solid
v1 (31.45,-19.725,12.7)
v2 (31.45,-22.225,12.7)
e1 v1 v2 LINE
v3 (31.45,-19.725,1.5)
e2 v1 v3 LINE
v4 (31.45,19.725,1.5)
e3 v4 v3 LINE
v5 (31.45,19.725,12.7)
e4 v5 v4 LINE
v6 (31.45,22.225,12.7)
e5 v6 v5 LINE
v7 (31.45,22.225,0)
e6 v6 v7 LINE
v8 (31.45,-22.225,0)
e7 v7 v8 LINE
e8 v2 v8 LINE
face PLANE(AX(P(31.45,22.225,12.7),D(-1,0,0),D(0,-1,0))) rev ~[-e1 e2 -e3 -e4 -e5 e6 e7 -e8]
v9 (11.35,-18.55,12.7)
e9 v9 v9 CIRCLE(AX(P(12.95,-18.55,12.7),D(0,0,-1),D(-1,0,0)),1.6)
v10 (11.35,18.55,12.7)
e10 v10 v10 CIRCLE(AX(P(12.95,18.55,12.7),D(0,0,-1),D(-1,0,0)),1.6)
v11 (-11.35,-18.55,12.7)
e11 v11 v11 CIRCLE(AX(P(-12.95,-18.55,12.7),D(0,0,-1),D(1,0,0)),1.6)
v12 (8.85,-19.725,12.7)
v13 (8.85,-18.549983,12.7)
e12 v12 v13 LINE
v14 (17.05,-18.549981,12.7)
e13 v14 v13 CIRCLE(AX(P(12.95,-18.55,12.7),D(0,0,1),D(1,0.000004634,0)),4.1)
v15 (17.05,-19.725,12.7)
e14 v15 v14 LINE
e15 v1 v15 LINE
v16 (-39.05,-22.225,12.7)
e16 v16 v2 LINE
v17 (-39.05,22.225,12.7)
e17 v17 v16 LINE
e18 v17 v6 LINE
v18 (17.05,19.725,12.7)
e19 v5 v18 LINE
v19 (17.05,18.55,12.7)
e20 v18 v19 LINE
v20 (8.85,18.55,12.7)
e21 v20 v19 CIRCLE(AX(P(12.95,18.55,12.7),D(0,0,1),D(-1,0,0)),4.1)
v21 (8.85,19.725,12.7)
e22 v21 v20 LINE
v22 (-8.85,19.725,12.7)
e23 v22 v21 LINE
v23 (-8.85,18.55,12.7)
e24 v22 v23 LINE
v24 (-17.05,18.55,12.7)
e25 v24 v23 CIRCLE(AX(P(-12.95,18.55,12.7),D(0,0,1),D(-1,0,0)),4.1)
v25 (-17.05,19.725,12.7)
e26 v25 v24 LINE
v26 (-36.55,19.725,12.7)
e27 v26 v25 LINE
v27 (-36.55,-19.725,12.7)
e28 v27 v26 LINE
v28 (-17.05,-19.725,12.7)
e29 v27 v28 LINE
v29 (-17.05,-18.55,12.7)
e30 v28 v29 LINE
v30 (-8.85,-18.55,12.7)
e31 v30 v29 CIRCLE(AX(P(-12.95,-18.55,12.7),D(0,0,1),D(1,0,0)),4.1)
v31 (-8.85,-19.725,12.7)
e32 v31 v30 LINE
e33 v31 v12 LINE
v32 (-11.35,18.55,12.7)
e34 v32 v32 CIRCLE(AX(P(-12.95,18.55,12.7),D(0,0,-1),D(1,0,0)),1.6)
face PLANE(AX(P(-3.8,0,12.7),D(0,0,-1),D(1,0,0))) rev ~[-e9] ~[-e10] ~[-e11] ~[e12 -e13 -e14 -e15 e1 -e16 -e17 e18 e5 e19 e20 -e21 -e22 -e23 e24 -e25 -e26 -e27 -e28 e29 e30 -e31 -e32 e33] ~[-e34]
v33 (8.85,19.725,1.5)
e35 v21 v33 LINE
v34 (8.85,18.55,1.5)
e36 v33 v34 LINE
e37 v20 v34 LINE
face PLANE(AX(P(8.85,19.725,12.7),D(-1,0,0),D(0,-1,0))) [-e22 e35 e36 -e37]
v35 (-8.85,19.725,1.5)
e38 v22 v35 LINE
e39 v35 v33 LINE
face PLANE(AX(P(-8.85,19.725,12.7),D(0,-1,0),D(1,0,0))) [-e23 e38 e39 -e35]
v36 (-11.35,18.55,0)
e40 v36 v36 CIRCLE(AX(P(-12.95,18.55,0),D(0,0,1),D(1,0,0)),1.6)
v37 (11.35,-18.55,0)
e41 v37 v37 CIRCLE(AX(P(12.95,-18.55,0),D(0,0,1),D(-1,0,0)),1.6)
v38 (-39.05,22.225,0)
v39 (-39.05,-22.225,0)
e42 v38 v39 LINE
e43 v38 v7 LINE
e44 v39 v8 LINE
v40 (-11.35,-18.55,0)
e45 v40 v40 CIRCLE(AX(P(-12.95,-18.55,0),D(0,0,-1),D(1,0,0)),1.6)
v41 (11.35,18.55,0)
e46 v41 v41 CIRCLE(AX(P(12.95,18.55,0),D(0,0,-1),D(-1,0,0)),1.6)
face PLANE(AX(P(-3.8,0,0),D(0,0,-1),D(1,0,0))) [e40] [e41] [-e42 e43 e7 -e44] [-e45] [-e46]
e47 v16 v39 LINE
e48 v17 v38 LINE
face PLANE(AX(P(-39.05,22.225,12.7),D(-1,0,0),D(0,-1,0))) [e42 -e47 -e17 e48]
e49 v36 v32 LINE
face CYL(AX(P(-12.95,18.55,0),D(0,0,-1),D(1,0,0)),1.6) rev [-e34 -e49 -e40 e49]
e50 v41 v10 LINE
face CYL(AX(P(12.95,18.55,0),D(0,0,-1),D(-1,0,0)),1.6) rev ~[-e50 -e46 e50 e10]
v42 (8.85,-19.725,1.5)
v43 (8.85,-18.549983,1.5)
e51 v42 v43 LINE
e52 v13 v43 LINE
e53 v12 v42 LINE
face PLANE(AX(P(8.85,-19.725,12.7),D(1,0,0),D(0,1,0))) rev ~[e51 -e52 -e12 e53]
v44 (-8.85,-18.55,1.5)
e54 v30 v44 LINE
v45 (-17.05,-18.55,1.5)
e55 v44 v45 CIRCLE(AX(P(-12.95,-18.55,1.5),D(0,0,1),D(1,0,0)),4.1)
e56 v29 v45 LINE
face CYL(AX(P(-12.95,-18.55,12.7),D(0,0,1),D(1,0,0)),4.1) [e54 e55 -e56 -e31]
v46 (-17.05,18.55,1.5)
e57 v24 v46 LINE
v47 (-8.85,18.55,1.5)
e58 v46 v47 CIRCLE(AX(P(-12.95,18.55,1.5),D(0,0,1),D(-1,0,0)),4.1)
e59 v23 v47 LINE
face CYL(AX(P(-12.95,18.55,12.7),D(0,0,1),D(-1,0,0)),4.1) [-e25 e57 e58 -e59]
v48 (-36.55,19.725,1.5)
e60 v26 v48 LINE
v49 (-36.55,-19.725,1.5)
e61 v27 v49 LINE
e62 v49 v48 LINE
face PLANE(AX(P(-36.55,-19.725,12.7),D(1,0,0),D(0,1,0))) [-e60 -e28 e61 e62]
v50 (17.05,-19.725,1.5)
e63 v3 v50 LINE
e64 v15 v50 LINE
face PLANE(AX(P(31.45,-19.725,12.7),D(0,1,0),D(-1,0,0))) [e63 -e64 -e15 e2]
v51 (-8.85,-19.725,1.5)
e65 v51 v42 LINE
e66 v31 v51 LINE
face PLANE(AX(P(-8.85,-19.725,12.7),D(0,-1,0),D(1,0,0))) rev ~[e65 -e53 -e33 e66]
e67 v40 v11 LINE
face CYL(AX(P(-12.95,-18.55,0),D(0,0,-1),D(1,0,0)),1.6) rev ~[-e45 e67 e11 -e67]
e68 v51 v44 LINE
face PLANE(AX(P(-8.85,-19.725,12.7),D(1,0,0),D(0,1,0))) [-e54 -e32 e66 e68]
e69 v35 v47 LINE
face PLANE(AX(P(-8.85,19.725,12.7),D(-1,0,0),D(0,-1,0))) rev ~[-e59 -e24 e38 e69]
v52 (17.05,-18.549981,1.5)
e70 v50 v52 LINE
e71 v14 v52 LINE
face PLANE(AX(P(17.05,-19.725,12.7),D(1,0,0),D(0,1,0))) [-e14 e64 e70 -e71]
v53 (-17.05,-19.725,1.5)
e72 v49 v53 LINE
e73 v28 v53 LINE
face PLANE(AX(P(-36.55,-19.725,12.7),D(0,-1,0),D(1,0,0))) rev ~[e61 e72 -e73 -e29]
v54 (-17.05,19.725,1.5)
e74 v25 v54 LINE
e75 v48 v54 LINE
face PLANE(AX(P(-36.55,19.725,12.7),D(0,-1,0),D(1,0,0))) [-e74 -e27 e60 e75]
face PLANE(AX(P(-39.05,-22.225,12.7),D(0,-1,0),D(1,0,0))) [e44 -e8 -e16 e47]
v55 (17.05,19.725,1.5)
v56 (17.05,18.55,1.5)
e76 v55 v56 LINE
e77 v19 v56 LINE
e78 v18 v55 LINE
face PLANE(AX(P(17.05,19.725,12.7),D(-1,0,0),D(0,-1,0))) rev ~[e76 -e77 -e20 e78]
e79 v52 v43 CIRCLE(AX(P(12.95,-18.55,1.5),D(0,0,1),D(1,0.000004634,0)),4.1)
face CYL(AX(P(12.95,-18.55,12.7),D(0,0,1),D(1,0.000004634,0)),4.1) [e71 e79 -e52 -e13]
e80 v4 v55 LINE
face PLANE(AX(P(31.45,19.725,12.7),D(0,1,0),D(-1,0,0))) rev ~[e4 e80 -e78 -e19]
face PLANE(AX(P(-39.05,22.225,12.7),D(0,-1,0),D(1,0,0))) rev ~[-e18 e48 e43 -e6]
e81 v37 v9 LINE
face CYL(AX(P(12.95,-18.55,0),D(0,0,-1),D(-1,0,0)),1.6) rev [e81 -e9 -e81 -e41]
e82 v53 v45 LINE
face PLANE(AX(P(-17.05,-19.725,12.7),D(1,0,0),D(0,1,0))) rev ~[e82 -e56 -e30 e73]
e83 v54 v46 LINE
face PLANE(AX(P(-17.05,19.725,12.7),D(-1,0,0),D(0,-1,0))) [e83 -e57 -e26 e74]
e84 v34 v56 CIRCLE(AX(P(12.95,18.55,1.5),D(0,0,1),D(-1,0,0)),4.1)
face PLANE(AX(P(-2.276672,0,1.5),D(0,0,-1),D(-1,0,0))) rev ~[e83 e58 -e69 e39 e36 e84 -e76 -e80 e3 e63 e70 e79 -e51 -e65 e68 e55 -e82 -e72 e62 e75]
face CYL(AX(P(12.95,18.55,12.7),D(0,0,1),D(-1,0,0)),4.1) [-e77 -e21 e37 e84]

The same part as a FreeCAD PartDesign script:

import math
import FreeCAD as App
import Part
import Sketcher
from FreeCAD import Vector
Q = App.Units.Quantity

doc = App.newDocument("Part")
body = doc.addObject("PartDesign::Body", "Body")

sketch1 = doc.addObject("Sketcher::SketchObject", "Sketch")
body.addObject(sketch1)
sketch1.AttachmentSupport = (doc.XY_Plane, [""])
sketch1.MapMode = "FlatFace"
sketch1.addGeometry([
    Part.LineSegment(Vector(-39.05, 22.225, 0), Vector(-39.05, -22.225, 0)),
    Part.LineSegment(Vector(-39.05, -22.225, 0), Vector(31.45, -22.225, 0)),
    Part.LineSegment(Vector(31.45, -22.225, 0), Vector(31.45, 22.225, 0)),
    Part.LineSegment(Vector(31.45, 22.225, 0), Vector(-39.05, 22.225, 0)),
], False)
sketch1.addConstraint([
    Sketcher.Constraint("Coincident", 0, 2, 1, 1),
    Sketcher.Constraint("Coincident", 1, 2, 2, 1),
    Sketcher.Constraint("Coincident", 2, 2, 3, 1),
    Sketcher.Constraint("Coincident", 3, 2, 0, 1),
    Sketcher.Constraint("Vertical", 0),
    Sketcher.Constraint("Horizontal", 1),
    Sketcher.Constraint("Vertical", 2),
    Sketcher.Constraint("Horizontal", 3),
    Sketcher.Constraint("DistanceX", 1, 1, 1, 2, Q("70.5 mm")),
    Sketcher.Constraint("DistanceY", 0, 2, 0, 1, Q("44.45 mm")),
    Sketcher.Constraint("DistanceX", 0, 2, -1, 1, Q("39.05 mm")),
    Sketcher.Constraint("DistanceY", 0, 2, -1, 1, Q("22.225 mm")),
])
pad1 = doc.addObject("PartDesign::Pad", "Pad")
body.addObject(pad1)
pad1.Profile = sketch1
pad1.Length = 12.7

sketch2 = doc.addObject("Sketcher::SketchObject", "Sketch001")
body.addObject(sketch2)
sketch2.AttachmentSupport = (doc.XY_Plane, [""])
sketch2.MapMode = "FlatFace"
sketch2.AttachmentOffset = App.Placement(Vector(0, 0, 12.7), App.Rotation())
sketch2.addGeometry(Part.Circle(Vector(-12.95, 18.55, 0), Vector(0, 0, 1), 1.6), False)
sketch2.addConstraint([
    Sketcher.Constraint("Diameter", 0, Q("3.2 mm")),
    Sketcher.Constraint("DistanceX", 0, 3, -1, 1, Q("12.95 mm")),
    Sketcher.Constraint("DistanceY", -1, 1, 0, 3, Q("18.55 mm")),
])
pocket1 = doc.addObject("PartDesign::Pocket", "Pocket")
body.addObject(pocket1)
pocket1.Profile = sketch2
pocket1.Type = "ThroughAll"

sketch3 = doc.addObject("Sketcher::SketchObject", "Sketch002")
body.addObject(sketch3)
sketch3.AttachmentSupport = (doc.XY_Plane, [""])
sketch3.MapMode = "FlatFace"
sketch3.AttachmentOffset = App.Placement(Vector(0, 0, 12.7), App.Rotation())
sketch3.addGeometry(Part.Circle(Vector(12.95, 18.55, 0), Vector(0, 0, 1), 1.6), False)
sketch3.addConstraint([
    Sketcher.Constraint("Diameter", 0, Q("3.2 mm")),
    Sketcher.Constraint("DistanceX", -1, 1, 0, 3, Q("12.95 mm")),
    Sketcher.Constraint("DistanceY", -1, 1, 0, 3, Q("18.55 mm")),
])
pocket2 = doc.addObject("PartDesign::Pocket", "Pocket001")
body.addObject(pocket2)
pocket2.Profile = sketch3
pocket2.Type = "ThroughAll"
doc.recompute()

mirrored = doc.addObject("PartDesign::Mirrored", "Mirrored")
body.addObject(mirrored)
mirrored.Originals = [pocket1, pocket2]
mirrored.MirrorPlane = (doc.XZ_Plane, [""])
body.Tip = mirrored

sketch4 = doc.addObject("Sketcher::SketchObject", "Sketch003")
body.addObject(sketch4)
sketch4.AttachmentSupport = (doc.XY_Plane, [""])
sketch4.MapMode = "FlatFace"
sketch4.addGeometry([
    Part.LineSegment(Vector(-36.55, -19.725, 0), Vector(-36.55, 19.725, 0)),
    Part.LineSegment(Vector(-36.55, 19.725, 0), Vector(-17.05, 19.725, 0)),
    Part.LineSegment(Vector(-17.05, 19.725, 0), Vector(-17.05, 18.55, 0)),
    Part.ArcOfCircle(Part.Circle(Vector(-12.95, 18.55, 0), Vector(0, 0, 1), 4.1), math.radians(180), math.radians(360)),
    Part.LineSegment(Vector(-8.85, 18.55, 0), Vector(-8.85, 19.725, 0)),
    Part.LineSegment(Vector(-8.85, 19.725, 0), Vector(8.85, 19.725, 0)),
    Part.LineSegment(Vector(8.85, 19.725, 0), Vector(8.85, 18.549983, 0)),
    Part.ArcOfCircle(Part.Circle(Vector(12.95, 18.55, 0), Vector(0, 0, 1), 4.1), math.radians(-179.999762), math.radians(-0.000266)),
    Part.LineSegment(Vector(17.05, 18.549981, 0), Vector(17.05, 19.725, 0)),
    Part.LineSegment(Vector(17.05, 19.725, 0), Vector(31.45, 19.725, 0)),
    Part.LineSegment(Vector(31.45, 19.725, 0), Vector(31.45, -19.725, 0)),
    Part.LineSegment(Vector(31.45, -19.725, 0), Vector(17.05, -19.725, 0)),
    Part.LineSegment(Vector(17.05, -19.725, 0), Vector(17.05, -18.55, 0)),
    Part.ArcOfCircle(Part.Circle(Vector(12.95, -18.55, 0), Vector(0, 0, 1), 4.1), math.radians(0), math.radians(180)),
    Part.LineSegment(Vector(8.85, -18.55, 0), Vector(8.85, -19.725, 0)),
    Part.LineSegment(Vector(8.85, -19.725, 0), Vector(-8.85, -19.725, 0)),
    Part.LineSegment(Vector(-8.85, -19.725, 0), Vector(-8.85, -18.55, 0)),
    Part.ArcOfCircle(Part.Circle(Vector(-12.95, -18.55, 0), Vector(0, 0, 1), 4.1), math.radians(0), math.radians(180)),
    Part.LineSegment(Vector(-17.05, -18.55, 0), Vector(-17.05, -19.725, 0)),
    Part.LineSegment(Vector(-17.05, -19.725, 0), Vector(-36.55, -19.725, 0)),
], False)
sketch4.addConstraint([
    Sketcher.Constraint("Coincident", 0, 2, 1, 1),
    Sketcher.Constraint("Coincident", 1, 2, 2, 1),
    Sketcher.Constraint("Tangent", 2, 2, 3, 1),
    Sketcher.Constraint("Tangent", 3, 2, 4, 1),
    Sketcher.Constraint("Coincident", 4, 2, 5, 1),
    Sketcher.Constraint("Coincident", 5, 2, 6, 1),
    Sketcher.Constraint("Coincident", 6, 2, 7, 1),
    Sketcher.Constraint("Coincident", 7, 2, 8, 1),
    Sketcher.Constraint("Coincident", 8, 2, 9, 1),
    Sketcher.Constraint("Coincident", 9, 2, 10, 1),
    Sketcher.Constraint("Coincident", 10, 2, 11, 1),
    Sketcher.Constraint("Coincident", 11, 2, 12, 1),
    Sketcher.Constraint("Tangent", 12, 2, 13, 1),
    Sketcher.Constraint("Tangent", 13, 2, 14, 1),
    Sketcher.Constraint("Coincident", 14, 2, 15, 1),
    Sketcher.Constraint("Coincident", 15, 2, 16, 1),
    Sketcher.Constraint("Tangent", 16, 2, 17, 1),
    Sketcher.Constraint("Tangent", 17, 2, 18, 1),
    Sketcher.Constraint("Coincident", 18, 2, 19, 1),
    Sketcher.Constraint("Coincident", 19, 2, 0, 1),
    Sketcher.Constraint("Vertical", 0),
    Sketcher.Constraint("Horizontal", 1),
    Sketcher.Constraint("Vertical", 2),
    Sketcher.Constraint("Vertical", 4),
    Sketcher.Constraint("Horizontal", 5),
    Sketcher.Constraint("Vertical", 6),
    Sketcher.Constraint("Vertical", 8),
    Sketcher.Constraint("Horizontal", 9),
    Sketcher.Constraint("Vertical", 10),
    Sketcher.Constraint("Horizontal", 11),
    Sketcher.Constraint("Vertical", 12),
    Sketcher.Constraint("Vertical", 14),
    Sketcher.Constraint("Horizontal", 15),
    Sketcher.Constraint("Vertical", 16),
    Sketcher.Constraint("Vertical", 18),
    Sketcher.Constraint("Horizontal", 19),
    Sketcher.Constraint("Equal", 3, 7),
    Sketcher.Constraint("Equal", 7, 13),
    Sketcher.Constraint("Equal", 13, 17),
    Sketcher.Constraint("Symmetric", 3, 3, 13, 3, -1, 1),
    Sketcher.Constraint("Symmetric", 7, 3, 17, 3, -1, 1),
    Sketcher.Constraint("Symmetric", 3, 3, 7, 3, -2),
    Sketcher.Constraint("Horizontal", 1, 2, 4, 2),
    Sketcher.Constraint("Horizontal", 5, 2, 8, 2),
    Sketcher.Constraint("Horizontal", 11, 2, 14, 2),
    Sketcher.Constraint("Horizontal", 15, 2, 18, 2),
    Sketcher.Constraint("Equal", 4, 12),
    Sketcher.Constraint("Radius", 3, Q("4.1 mm")),
    Sketcher.Constraint("DistanceX", 1, 1, 1, 2, Q("19.5 mm")),
    Sketcher.Constraint("DistanceX", 5, 1, 5, 2, Q("17.7 mm")),
    Sketcher.Constraint("DistanceX", 9, 1, 9, 2, Q("14.4 mm")),
    Sketcher.Constraint("DistanceY", 0, 1, 0, 2, Q("39.45 mm")),
    Sketcher.Constraint("DistanceY", 13, 3, 7, 3, Q("37.1 mm")),
    Sketcher.Constraint("DistanceY", 8, 1, 8, 2, Q("1.175019 mm")),
    Sketcher.Constraint("DistanceY", 6, 2, 6, 1, Q("1.175017 mm")),
])
pocket3 = doc.addObject("PartDesign::Pocket", "Pocket002")
body.addObject(pocket3)
pocket3.Profile = sketch4
pocket3.Length = 11.2
pocket3.Reversed = True
body2 = doc.addObject("PartDesign::Body", "Body001")
doc.recompute()

body.Placement = App.Placement(Vector(0, 0, 12.7), App.Rotation(Vector(1, 0, 0), 180))
boolean = doc.addObject("PartDesign::Boolean", "Boolean")
body2.addObject(boolean)
boolean.Type = "Fuse"
boolean.addObjects([body])

doc.recompute()
